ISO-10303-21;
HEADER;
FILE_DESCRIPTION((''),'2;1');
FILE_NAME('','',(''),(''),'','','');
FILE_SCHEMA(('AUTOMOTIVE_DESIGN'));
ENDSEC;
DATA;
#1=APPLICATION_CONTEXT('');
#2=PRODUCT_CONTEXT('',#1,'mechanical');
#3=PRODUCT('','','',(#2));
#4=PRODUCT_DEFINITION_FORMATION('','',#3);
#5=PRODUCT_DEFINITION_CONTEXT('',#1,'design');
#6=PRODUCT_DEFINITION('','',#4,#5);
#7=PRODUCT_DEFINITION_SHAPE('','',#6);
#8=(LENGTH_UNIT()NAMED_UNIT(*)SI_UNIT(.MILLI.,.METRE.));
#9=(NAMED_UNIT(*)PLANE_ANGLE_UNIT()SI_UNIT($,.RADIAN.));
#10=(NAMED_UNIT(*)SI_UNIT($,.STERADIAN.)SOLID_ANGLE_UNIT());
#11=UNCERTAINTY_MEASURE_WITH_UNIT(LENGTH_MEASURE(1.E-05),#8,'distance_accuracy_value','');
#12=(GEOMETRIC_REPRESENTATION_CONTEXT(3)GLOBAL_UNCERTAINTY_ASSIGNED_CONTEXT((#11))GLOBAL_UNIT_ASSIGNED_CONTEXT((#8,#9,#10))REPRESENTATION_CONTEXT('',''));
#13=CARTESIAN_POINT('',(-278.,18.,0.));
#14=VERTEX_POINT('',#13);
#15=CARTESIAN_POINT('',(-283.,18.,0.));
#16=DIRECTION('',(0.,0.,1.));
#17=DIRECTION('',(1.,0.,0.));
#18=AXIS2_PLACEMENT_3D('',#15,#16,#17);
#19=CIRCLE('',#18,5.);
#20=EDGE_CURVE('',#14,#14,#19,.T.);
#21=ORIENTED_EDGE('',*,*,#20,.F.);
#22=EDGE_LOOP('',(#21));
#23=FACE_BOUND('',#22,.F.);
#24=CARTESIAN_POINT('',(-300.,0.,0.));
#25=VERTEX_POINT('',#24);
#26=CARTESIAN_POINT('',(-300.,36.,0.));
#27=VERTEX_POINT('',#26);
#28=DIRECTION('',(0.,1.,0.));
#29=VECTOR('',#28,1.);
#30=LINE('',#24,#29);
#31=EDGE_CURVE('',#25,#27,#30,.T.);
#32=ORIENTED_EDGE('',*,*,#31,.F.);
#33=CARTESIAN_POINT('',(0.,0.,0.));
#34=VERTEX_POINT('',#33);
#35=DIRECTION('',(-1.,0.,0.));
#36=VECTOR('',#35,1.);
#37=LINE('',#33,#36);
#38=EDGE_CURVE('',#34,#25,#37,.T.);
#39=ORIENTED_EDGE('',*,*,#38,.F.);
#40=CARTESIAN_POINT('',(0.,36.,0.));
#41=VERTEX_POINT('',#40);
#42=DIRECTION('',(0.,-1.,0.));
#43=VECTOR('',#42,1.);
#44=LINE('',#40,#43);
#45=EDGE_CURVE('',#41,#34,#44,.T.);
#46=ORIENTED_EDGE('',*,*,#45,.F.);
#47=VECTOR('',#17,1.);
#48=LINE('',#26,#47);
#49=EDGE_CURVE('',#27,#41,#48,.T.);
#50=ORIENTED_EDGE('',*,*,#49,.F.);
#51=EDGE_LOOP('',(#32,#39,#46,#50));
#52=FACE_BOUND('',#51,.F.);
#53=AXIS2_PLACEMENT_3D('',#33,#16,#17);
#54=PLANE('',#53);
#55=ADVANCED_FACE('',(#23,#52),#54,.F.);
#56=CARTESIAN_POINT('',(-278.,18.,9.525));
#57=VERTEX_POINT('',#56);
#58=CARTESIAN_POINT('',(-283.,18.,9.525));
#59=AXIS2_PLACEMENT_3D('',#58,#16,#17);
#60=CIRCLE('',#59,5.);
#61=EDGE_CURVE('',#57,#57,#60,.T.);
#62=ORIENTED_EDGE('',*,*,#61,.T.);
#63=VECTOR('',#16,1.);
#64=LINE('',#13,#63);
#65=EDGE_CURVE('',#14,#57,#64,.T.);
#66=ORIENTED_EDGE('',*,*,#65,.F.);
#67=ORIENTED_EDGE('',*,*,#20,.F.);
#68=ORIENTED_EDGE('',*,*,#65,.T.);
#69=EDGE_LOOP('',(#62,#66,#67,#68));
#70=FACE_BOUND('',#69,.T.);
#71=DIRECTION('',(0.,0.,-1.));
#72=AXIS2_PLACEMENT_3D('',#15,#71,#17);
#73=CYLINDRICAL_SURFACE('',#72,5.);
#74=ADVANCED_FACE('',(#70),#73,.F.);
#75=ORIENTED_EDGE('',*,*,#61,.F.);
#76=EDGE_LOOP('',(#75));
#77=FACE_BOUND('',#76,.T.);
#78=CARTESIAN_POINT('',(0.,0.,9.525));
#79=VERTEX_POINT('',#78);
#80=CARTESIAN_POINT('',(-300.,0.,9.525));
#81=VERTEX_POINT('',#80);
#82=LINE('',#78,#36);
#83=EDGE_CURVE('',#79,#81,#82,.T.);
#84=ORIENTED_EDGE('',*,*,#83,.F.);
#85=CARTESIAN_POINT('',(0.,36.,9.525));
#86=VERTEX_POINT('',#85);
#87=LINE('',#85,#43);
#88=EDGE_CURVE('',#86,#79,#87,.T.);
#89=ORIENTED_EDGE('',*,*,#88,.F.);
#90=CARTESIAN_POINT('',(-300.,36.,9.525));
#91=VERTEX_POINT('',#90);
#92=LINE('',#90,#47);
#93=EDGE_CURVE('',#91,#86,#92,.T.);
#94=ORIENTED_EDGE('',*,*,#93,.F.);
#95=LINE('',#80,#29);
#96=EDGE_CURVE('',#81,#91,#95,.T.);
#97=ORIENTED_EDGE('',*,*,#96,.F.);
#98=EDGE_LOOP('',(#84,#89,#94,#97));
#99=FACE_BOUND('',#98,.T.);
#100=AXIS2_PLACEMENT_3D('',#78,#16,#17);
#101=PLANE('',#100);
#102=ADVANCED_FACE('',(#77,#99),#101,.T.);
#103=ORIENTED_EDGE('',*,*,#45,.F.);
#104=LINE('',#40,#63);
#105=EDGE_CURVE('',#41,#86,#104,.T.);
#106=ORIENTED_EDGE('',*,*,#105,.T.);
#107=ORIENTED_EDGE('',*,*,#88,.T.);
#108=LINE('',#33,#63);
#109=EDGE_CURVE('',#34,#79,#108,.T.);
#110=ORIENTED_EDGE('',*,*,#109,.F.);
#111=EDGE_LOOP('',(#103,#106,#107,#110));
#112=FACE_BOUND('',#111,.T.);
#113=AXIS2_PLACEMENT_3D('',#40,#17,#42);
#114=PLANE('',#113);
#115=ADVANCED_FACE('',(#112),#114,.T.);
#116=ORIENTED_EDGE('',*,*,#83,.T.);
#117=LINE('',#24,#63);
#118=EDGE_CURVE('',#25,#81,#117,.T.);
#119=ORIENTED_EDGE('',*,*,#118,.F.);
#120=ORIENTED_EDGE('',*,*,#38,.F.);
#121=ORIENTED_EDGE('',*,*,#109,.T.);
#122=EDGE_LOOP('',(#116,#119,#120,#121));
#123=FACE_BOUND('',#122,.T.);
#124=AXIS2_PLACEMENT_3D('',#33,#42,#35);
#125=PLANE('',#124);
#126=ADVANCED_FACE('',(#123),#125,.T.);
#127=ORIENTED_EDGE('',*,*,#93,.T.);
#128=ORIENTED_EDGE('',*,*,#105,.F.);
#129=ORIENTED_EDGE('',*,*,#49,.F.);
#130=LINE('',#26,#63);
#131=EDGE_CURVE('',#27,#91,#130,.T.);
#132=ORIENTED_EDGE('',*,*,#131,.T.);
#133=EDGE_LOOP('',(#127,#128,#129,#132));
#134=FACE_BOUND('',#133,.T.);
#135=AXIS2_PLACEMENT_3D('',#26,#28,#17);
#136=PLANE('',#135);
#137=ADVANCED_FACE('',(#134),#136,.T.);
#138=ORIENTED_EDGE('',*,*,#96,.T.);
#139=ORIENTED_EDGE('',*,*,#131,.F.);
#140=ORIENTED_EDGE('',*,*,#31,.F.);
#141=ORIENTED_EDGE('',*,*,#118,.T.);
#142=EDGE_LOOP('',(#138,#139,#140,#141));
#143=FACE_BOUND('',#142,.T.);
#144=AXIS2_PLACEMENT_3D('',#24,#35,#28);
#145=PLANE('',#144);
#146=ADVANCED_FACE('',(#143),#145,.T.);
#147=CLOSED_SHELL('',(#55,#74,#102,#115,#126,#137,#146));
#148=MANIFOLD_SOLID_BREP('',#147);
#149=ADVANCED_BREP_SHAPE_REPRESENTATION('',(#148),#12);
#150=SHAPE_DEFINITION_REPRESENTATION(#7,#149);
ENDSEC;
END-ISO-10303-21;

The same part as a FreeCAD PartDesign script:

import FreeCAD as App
import Part
import Sketcher
from FreeCAD import Vector
Q = App.Units.Quantity


def add_polygon(sketch, points):
    """Adds a closed chain of lines whose ends are joined by coincident constraints."""
    first, n = sketch.GeometryCount, len(points)
    for a, b in zip(points, points[1:] + points[:1]):
        sketch.addGeometry(Part.LineSegment(App.Vector(*a, 0), App.Vector(*b, 0)), False)
    for i in range(n):
        sketch.addConstraint(Sketcher.Constraint("Coincident", first + i, 2, first + (i + 1) % n, 1))

doc = App.newDocument("Part")
body = doc.addObject("PartDesign::Body", "Body")

# Sketch on XY plane
sketch1 = body.newObject("Sketcher::SketchObject", "Sketch")
sketch1.AttachmentSupport = (doc.getObject("XY_Plane"), [""])
sketch1.MapMode = "FlatFace"
add_polygon(sketch1, [(-300, 0), (0, 0), (0, 36), (-300, 36)])  # lines 0-3
sketch1.addGeometry(Part.Circle(Vector(-283, 18, 0), Vector(0, 0, 1), 5), False)  # 4
sketch1.addConstraint([
    Sketcher.Constraint("Horizontal", 0),
    Sketcher.Constraint("Vertical", 1),
    Sketcher.Constraint("Horizontal", 2),
    Sketcher.Constraint("Vertical", 3),
    Sketcher.Constraint("Coincident", 0, 2, -1, 1),
    Sketcher.Constraint("Diameter", 4, Q("10 mm")),
    Sketcher.Constraint("DistanceX", 0, 1, 0, 2, Q("300 mm")),
    Sketcher.Constraint("DistanceY", 1, 1, 1, 2, Q("36 mm")),
    Sketcher.Constraint("DistanceY", -1, 1, 4, 3, Q("18 mm")),
    Sketcher.Constraint("DistanceX", 2, 2, 4, 3, Q("17 mm")),
])
pad1 = body.newObject("PartDesign::Pad", "Pad")
pad1.Profile = sketch1
pad1.Length = 9.525

doc.recompute()
